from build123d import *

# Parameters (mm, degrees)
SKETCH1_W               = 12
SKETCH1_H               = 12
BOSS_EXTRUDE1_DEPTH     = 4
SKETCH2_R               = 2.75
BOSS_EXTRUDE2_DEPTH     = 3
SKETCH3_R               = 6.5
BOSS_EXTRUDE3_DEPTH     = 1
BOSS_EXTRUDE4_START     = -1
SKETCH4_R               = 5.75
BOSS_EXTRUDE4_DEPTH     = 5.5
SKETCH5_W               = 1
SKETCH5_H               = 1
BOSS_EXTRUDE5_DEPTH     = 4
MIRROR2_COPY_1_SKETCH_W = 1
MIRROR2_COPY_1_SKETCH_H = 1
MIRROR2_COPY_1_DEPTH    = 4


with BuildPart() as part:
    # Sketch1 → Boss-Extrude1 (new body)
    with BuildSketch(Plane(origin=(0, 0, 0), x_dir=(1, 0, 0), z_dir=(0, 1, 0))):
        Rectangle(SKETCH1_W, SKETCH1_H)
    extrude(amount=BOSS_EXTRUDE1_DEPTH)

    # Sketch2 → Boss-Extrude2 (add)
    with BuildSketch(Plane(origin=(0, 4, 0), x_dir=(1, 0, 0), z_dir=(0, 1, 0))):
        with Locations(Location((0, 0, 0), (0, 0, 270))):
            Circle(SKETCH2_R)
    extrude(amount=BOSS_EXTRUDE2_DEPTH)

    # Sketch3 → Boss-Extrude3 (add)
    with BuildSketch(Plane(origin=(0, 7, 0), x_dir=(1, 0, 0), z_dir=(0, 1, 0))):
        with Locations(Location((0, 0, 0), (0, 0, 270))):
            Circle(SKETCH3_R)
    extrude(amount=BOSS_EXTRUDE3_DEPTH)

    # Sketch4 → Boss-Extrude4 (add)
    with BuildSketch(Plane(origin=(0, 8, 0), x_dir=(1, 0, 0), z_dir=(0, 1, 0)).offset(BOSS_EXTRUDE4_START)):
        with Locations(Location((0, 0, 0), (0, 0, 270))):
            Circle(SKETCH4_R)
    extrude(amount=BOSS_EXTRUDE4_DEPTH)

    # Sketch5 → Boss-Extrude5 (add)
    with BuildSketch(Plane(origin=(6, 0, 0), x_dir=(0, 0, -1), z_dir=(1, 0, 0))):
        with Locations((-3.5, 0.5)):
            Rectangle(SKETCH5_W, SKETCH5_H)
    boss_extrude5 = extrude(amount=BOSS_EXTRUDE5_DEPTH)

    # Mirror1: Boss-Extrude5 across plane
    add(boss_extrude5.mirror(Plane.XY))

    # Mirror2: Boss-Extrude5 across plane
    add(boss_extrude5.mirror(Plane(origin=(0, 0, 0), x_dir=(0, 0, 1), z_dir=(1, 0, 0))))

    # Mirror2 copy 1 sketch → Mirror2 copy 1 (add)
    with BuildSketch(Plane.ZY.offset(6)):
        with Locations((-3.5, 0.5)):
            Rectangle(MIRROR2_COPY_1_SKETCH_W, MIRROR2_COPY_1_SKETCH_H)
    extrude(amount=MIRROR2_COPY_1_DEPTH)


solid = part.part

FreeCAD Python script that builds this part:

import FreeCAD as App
import Part
import Sketcher

V = App.Vector
Q = App.Units.Quantity


def add_polygon(sketch, points):
    """Adds a closed chain of lines whose ends are joined by coincident constraints."""
    first, n = sketch.GeometryCount, len(points)
    for a, b in zip(points, points[1:] + points[:1]):
        sketch.addGeometry(Part.LineSegment(App.Vector(*a, 0), App.Vector(*b, 0)), False)
    for i in range(n):
        sketch.addConstraint(Sketcher.Constraint("Coincident", first + i, 2, first + (i + 1) % n, 1))

doc = App.newDocument("Part")
body = doc.addObject("PartDesign::Body", "Body")

# Sketch on XZ plane
sketch1 = body.newObject("Sketcher::SketchObject", "Sketch")
sketch1.AttachmentSupport = (doc.getObject("XZ_Plane"), [""])
sketch1.MapMode = "FlatFace"
add_polygon(sketch1, [(-6, -6), (-6, 6), (6, 6), (6, -6)])  # lines 0-3
sketch1.addConstraint([
    Sketcher.Constraint("Vertical", 0),
    Sketcher.Constraint("Horizontal", 1),
    Sketcher.Constraint("Vertical", 2),
    Sketcher.Constraint("Horizontal", 3),
    Sketcher.Constraint("Symmetric", 0, 2, 2, 2, -1, 1),
    Sketcher.Constraint("Equal", 3, 0),
    Sketcher.Constraint("DistanceX", 1, 1, 1, 2, Q("12 mm")),
])
pad1 = body.newObject("PartDesign::Pad", "Pad")
pad1.Profile = sketch1
pad1.Length = 4
pad1.Reversed = True

# Sketch on XZ plane
sketch2 = body.newObject("Sketcher::SketchObject", "Sketch001")
sketch2.AttachmentSupport = (doc.getObject("XZ_Plane"), [""])
sketch2.MapMode = "FlatFace"
sketch2.AttachmentOffset = App.Placement(V(0, 0, -4), App.Rotation())
sketch2.addGeometry(Part.Circle(V(0, 0, 0), V(0, 0, 1), 2.75), False)
sketch2.addConstraint([
    Sketcher.Constraint("Coincident", 0, 3, -1, 1),
    Sketcher.Constraint("Diameter", 0, Q("5.5 mm")),
])
pad2 = body.newObject("PartDesign::Pad", "Pad001")
pad2.Profile = sketch2
pad2.Length = 3
pad2.Reversed = True

# Sketch on XZ plane
sketch3 = body.newObject("Sketcher::SketchObject", "Sketch002")
sketch3.AttachmentSupport = (doc.getObject("XZ_Plane"), [""])
sketch3.MapMode = "FlatFace"
sketch3.AttachmentOffset = App.Placement(V(0, 0, -7), App.Rotation())
sketch3.addGeometry(Part.Circle(V(0, 0, 0), V(0, 0, 1), 6.5), False)
sketch3.addConstraint([
    Sketcher.Constraint("Coincident", 0, 3, -1, 1),
    Sketcher.Constraint("Diameter", 0, Q("13 mm")),
])
pad3 = body.newObject("PartDesign::Pad", "Pad002")
pad3.Profile = sketch3
pad3.Length = 1
pad3.Reversed = True

# Sketch on XZ plane
sketch4 = body.newObject("Sketcher::SketchObject", "Sketch003")
sketch4.AttachmentSupport = (doc.getObject("XZ_Plane"), [""])
sketch4.MapMode = "FlatFace"
sketch4.AttachmentOffset = App.Placement(V(0, 0, -7), App.Rotation())
sketch4.addGeometry(Part.Circle(V(0, 0, 0), V(0, 0, 1), 5.75), False)
sketch4.addConstraint([
    Sketcher.Constraint("Coincident", 0, 3, -1, 1),
    Sketcher.Constraint("Diameter", 0, Q("11.5 mm")),
])
pad4 = body.newObject("PartDesign::Pad", "Pad003")
pad4.Profile = sketch4
pad4.Length = 5.5
pad4.Reversed = True

# Sketch on YZ plane
sketch5 = body.newObject("Sketcher::SketchObject", "Sketch004")
sketch5.AttachmentSupport = (doc.getObject("YZ_Plane"), [""])
sketch5.MapMode = "FlatFace"
sketch5.AttachmentOffset = App.Placement(V(0, 0, 6), App.Rotation())
add_polygon(sketch5, [(1, 4), (0, 4), (0, 3), (1, 3)])  # lines 0-3
sketch5.addConstraint([
    Sketcher.Constraint("Horizontal", 0),
    Sketcher.Constraint("Vertical", 1),
    Sketcher.Constraint("Horizontal", 2),
    Sketcher.Constraint("Vertical", 3),
    Sketcher.Constraint("PointOnObject", 0, 2, -2),
    Sketcher.Constraint("Equal", 2, 1),
    Sketcher.Constraint("DistanceX", 0, 2, 0, 1, Q("1 mm")),
    Sketcher.Constraint("DistanceY", -1, 1, 0, 2, Q("4 mm")),
])
pad5 = body.newObject("PartDesign::Pad", "Pad004")
pad5.Profile = sketch5
pad5.Length = 4
doc.recompute()

mirrored = body.newObject("PartDesign::Mirrored", "Mirrored")
mirrored.Originals = [pad5]
mirrored.MirrorPlane = (doc.getObject("XY_Plane"), [""])
body.Tip = mirrored
doc.recompute()

mirrored2 = body.newObject("PartDesign::Mirrored", "Mirrored001")
mirrored2.Originals = [pad5]
mirrored2.MirrorPlane = (doc.getObject("YZ_Plane"), [""])
body.Tip = mirrored2

# Sketch on YZ plane
sketch6 = body.newObject("Sketcher::SketchObject", "Sketch005")
sketch6.AttachmentSupport = (doc.getObject("YZ_Plane"), [""])
sketch6.MapMode = "FlatFace"
sketch6.AttachmentOffset = App.Placement(V(0, 0, -6), App.Rotation())
add_polygon(sketch6, [(1, -4), (0, -4), (0, -3), (1, -3)])  # lines 0-3
sketch6.addConstraint([
    Sketcher.Constraint("Horizontal", 0),
    Sketcher.Constraint("Vertical", 1),
    Sketcher.Constraint("Horizontal", 2),
    Sketcher.Constraint("Vertical", 3),
    Sketcher.Constraint("PointOnObject", 0, 2, -2),
    Sketcher.Constraint("Equal", 2, 1),
    Sketcher.Constraint("DistanceX", 0, 2, 0, 1, Q("1 mm")),
    Sketcher.Constraint("DistanceY", 0, 2, -1, 1, Q("4 mm")),
])
pad6 = body.newObject("PartDesign::Pad", "Pad005")
pad6.Profile = sketch6
pad6.Length = 4
pad6.Reversed = True

doc.recompute()
